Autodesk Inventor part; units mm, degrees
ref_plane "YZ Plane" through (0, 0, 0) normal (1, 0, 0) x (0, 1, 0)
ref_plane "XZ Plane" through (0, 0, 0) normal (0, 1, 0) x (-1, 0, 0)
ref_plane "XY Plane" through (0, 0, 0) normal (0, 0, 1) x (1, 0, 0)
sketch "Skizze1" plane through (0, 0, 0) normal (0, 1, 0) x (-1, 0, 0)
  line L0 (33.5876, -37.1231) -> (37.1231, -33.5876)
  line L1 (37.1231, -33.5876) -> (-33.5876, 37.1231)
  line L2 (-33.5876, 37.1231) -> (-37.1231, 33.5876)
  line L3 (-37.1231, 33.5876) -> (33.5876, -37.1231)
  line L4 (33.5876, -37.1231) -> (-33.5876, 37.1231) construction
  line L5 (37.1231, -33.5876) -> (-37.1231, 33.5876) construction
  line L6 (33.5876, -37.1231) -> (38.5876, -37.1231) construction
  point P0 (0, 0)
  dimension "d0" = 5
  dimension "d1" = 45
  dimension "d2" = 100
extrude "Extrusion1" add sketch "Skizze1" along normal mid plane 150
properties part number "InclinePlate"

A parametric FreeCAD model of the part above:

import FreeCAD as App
import Part
import Sketcher
Q = App.Units.Quantity


def add_polygon(sketch, points):
    """Adds a closed chain of lines whose ends are joined by coincident constraints."""
    first, n = sketch.GeometryCount, len(points)
    for a, b in zip(points, points[1:] + points[:1]):
        sketch.addGeometry(Part.LineSegment(App.Vector(*a, 0), App.Vector(*b, 0)), False)
    for i in range(n):
        sketch.addConstraint(Sketcher.Constraint("Coincident", first + i, 2, first + (i + 1) % n, 1))

doc = App.newDocument("Part")
body = doc.addObject("PartDesign::Body", "Body")

sketch1 = doc.addObject("Sketcher::SketchObject", "Sketch")
body.addObject(sketch1)
sketch1.AttachmentSupport = (doc.XZ_Plane, [""])
sketch1.MapMode = "FlatFace"
add_polygon(sketch1, [(37.1231, 33.5876), (-33.5876, -37.1231), (-37.1231, -33.5876), (33.5876, 37.1231)])
sketch1.addConstraint([
    Sketcher.Constraint("Symmetric", 0, 2, 2, 2, -1, 1),
    Sketcher.Constraint("Symmetric", 1, 2, 3, 2, -1, 1),
    Sketcher.Constraint("Perpendicular", 0, 1),
    Sketcher.Constraint("Angle", 2, Q("45 deg")),
    Sketcher.Constraint("Distance", 0, Q("100 mm")),
    Sketcher.Constraint("Distance", 1, Q("5 mm")),
])
pad1 = doc.addObject("PartDesign::Pad", "Pad")
body.addObject(pad1)
pad1.Profile = sketch1
pad1.Length = 150
pad1.Midplane = True

doc.recompute()
